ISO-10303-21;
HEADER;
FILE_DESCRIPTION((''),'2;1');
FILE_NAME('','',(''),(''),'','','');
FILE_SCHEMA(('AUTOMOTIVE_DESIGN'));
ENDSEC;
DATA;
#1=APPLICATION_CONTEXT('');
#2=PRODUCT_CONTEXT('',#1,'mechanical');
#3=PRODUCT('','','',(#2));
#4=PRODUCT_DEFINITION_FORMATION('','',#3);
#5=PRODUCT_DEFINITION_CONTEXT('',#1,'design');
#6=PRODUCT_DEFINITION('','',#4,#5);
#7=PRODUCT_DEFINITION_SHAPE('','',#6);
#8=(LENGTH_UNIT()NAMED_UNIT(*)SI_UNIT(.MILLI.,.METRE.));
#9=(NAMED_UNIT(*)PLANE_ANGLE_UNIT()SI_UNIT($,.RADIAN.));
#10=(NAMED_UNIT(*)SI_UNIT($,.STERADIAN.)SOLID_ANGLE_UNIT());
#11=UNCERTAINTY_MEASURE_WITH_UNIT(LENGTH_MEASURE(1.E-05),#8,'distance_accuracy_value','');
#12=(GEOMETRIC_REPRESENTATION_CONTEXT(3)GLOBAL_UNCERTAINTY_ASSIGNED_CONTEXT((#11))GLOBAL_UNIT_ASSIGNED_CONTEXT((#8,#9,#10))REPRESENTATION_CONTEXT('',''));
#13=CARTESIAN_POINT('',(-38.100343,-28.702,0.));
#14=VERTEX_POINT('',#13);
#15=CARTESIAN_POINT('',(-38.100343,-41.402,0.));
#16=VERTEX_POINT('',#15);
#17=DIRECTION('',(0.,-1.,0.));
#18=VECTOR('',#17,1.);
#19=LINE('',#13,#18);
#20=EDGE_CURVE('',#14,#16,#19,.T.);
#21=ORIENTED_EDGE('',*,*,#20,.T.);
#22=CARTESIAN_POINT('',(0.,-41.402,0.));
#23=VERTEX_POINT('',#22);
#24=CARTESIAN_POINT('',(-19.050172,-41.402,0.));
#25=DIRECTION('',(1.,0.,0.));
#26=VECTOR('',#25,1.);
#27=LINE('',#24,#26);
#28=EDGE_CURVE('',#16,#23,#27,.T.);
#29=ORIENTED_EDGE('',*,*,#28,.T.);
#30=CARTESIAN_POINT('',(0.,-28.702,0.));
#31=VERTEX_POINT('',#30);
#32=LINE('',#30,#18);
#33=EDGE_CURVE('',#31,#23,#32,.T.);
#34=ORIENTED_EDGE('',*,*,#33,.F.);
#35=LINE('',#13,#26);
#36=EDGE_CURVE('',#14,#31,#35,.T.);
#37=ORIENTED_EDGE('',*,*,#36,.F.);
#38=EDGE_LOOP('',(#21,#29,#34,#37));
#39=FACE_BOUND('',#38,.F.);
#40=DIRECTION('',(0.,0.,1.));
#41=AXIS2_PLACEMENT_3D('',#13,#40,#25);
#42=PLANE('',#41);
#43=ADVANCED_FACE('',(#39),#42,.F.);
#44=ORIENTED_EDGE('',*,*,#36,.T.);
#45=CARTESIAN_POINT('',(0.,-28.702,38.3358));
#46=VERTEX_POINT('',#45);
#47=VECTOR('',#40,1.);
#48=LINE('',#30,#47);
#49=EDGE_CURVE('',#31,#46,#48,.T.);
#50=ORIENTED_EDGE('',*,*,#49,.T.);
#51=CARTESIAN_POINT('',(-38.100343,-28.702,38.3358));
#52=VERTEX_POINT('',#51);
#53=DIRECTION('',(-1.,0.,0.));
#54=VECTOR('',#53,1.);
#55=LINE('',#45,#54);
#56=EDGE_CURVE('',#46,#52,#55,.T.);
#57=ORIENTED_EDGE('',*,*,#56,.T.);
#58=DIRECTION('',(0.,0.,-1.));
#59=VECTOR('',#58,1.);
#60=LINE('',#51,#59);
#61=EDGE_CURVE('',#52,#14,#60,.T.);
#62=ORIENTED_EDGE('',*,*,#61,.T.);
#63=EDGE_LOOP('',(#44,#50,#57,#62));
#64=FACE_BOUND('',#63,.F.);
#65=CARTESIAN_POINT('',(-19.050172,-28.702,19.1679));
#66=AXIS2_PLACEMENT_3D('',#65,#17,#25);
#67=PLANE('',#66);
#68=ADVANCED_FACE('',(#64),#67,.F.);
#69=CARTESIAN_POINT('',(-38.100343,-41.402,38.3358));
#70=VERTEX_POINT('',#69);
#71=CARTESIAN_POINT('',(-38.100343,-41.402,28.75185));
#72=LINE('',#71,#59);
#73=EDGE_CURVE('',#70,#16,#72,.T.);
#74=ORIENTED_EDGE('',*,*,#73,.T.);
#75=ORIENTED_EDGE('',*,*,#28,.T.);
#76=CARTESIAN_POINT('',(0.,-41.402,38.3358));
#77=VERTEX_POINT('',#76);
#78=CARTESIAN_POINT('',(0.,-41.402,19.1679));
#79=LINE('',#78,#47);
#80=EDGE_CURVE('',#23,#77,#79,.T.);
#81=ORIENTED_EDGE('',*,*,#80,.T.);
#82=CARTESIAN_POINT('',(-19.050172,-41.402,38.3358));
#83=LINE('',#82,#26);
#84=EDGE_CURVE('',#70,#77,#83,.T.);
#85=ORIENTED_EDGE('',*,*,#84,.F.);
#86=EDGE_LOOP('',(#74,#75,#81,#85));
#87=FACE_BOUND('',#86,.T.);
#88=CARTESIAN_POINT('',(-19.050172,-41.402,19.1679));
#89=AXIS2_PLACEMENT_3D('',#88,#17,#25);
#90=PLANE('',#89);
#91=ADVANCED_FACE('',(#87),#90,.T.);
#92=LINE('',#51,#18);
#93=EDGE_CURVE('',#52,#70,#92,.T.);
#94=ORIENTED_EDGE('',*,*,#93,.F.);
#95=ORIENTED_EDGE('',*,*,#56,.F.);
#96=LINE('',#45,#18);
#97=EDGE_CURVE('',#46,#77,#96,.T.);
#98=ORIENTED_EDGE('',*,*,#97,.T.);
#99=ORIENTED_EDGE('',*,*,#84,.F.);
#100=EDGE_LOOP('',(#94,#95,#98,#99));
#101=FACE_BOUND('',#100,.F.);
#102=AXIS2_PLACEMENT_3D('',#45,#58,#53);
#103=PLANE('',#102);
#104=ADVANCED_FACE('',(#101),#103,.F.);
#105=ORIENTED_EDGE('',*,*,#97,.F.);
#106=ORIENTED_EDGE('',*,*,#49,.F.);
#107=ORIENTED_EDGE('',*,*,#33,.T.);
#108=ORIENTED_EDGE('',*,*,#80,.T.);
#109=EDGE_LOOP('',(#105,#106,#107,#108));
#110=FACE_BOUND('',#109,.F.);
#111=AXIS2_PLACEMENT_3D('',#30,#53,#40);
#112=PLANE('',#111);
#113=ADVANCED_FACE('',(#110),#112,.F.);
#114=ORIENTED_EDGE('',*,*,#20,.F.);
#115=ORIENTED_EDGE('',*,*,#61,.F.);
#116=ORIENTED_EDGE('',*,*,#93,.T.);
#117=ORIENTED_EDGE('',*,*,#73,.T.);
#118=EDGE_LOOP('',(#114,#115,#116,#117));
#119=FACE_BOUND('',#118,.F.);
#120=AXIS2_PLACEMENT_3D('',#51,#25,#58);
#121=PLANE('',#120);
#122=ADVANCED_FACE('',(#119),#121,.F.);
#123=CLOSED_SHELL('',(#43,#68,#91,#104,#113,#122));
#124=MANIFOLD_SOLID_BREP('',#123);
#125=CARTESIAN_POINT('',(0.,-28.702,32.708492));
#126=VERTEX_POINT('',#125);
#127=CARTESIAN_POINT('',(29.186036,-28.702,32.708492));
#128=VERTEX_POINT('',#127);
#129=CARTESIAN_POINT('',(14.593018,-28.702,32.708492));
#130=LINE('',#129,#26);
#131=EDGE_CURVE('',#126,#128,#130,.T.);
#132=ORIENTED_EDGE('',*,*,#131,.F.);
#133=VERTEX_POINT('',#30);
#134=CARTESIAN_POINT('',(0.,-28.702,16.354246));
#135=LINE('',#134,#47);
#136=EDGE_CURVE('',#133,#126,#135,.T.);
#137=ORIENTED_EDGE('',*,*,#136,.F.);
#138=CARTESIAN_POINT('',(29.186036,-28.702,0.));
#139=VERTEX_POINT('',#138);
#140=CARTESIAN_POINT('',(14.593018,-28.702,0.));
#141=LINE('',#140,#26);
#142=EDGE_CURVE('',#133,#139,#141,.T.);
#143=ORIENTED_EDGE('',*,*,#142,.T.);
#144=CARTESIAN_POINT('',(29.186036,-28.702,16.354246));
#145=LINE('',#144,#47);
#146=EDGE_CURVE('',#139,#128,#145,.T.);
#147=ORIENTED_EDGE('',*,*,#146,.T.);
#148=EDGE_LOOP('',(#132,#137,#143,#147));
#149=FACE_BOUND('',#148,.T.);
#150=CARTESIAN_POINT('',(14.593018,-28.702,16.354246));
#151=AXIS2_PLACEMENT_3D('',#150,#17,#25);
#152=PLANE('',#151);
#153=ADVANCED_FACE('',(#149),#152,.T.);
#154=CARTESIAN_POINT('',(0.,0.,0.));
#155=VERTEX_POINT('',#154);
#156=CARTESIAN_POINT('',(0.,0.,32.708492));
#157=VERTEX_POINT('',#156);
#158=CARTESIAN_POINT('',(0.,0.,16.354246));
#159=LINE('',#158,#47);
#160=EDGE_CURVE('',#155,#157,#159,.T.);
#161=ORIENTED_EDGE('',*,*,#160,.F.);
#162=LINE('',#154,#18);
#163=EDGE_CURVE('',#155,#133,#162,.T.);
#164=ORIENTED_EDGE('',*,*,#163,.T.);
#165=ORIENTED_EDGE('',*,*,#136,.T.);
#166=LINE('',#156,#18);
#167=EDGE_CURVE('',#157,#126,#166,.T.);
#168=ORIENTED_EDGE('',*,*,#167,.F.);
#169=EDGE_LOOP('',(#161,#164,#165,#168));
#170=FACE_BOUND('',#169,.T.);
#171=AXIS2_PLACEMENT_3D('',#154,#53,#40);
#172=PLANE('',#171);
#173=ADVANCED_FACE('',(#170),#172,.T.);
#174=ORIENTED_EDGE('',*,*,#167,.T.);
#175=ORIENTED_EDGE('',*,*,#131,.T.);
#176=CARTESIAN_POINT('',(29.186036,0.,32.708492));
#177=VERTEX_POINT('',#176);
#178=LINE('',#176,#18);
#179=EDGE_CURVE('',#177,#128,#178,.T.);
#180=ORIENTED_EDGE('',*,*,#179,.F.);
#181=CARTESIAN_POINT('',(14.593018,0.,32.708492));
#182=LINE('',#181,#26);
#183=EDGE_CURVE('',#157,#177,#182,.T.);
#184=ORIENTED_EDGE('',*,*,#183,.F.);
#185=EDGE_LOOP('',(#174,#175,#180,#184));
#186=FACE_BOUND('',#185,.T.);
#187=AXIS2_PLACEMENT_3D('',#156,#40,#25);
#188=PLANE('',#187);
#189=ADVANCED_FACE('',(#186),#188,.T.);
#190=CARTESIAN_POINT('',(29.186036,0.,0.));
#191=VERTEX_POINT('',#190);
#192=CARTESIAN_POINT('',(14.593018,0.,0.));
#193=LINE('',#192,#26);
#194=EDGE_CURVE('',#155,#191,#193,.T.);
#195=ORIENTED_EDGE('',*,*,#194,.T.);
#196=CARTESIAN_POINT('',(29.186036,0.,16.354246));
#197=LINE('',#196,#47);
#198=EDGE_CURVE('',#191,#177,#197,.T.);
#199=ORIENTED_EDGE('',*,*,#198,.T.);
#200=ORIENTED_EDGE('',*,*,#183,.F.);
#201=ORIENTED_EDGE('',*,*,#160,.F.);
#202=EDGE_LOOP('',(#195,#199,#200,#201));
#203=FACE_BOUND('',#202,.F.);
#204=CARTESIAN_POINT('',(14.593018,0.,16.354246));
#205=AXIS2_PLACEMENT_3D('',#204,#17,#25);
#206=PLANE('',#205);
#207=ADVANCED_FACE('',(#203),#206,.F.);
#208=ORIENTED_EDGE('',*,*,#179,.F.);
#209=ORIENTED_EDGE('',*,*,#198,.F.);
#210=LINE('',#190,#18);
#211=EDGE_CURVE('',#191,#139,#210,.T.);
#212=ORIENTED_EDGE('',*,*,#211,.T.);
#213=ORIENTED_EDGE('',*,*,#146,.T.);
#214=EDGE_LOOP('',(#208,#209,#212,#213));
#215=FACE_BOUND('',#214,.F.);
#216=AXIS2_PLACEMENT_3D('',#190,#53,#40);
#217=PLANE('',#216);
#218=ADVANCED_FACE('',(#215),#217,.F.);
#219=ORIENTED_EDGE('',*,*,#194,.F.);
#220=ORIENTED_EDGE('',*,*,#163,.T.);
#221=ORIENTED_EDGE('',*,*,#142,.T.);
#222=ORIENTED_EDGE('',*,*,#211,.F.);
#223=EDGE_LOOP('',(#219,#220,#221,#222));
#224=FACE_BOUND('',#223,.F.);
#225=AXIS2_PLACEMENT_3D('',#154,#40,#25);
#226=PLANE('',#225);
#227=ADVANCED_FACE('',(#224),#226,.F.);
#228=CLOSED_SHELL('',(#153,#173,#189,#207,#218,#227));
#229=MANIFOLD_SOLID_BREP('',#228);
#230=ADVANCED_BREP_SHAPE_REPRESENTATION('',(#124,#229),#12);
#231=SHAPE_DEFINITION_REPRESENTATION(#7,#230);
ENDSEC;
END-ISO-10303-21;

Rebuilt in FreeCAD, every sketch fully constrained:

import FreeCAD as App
import Part
import Sketcher

V = App.Vector
Q = App.Units.Quantity

doc = App.newDocument("Part")
params = doc.addObject("Spreadsheet::Sheet", "Params")
for row, (alias, value) in enumerate([
    ("pad1_length", "1.13 in"),
    ("pad2_length", "1 in"),
    ("pocket1_length", "0.5 in"),
], start=1):
    params.set(f"A{row}", alias)
    params.set(f"B{row}", "=" + value)
    params.setAlias(f"B{row}", alias)

body = doc.addObject("PartDesign::Body", "Body")

# Sketch on XZ plane
sketch1 = body.newObject("Sketcher::SketchObject", "Sketch")
sketch1.AttachmentSupport = (doc.getObject("XZ_Plane"), [""])
sketch1.MapMode = "FlatFace"
sketch1.addGeometry([
    Part.LineSegment(V(0, 33, 0), V(0, 0, 0)),
    Part.LineSegment(V(0, 0, 0), V(29, 0, 0)),
    Part.LineSegment(V(29, 0, 0), V(29, 33, 0)),
    Part.LineSegment(V(29, 33, 0), V(0, 33, 0)),
], False)
sketch1.addConstraint([
    Sketcher.Constraint("Coincident", 0, 2, 1, 1),
    Sketcher.Constraint("Coincident", 1, 2, 2, 1),
    Sketcher.Constraint("Coincident", 2, 2, 3, 1),
    Sketcher.Constraint("Coincident", 3, 2, 0, 1),
    Sketcher.Constraint("Vertical", 0),
    Sketcher.Constraint("Horizontal", 1),
    Sketcher.Constraint("Vertical", 2),
    Sketcher.Constraint("Horizontal", 3),
    Sketcher.Constraint("Coincident", 0, 2, -1, 1),
    Sketcher.Constraint("DistanceX", 1, 1, 1, 2, Q("29.186036 mm")),
    Sketcher.Constraint("DistanceY", 0, 2, 0, 1, Q("32.708492 mm")),
])
pad1 = body.newObject("PartDesign::Pad", "Pad")
pad1.Profile = sketch1
pad1.setExpression("Length", "Params.pad1_length")
body2 = doc.addObject("PartDesign::Body", "Body001")

# Sketch on XZ plane
sketch2 = body2.newObject("Sketcher::SketchObject", "Sketch001")
sketch2.AttachmentSupport = (doc.getObject("XZ_Plane001"), [""])
sketch2.MapMode = "FlatFace"
sketch2.AttachmentOffset = App.Placement(V(0, 0, 1.13 * 25.4), App.Rotation())
sketch2.addGeometry([
    Part.LineSegment(V(-38, 0, 0), V(0, 0, 0)),
    Part.LineSegment(V(0, 0, 0), V(0, 38, 0)),
    Part.LineSegment(V(0, 38, 0), V(-38, 38, 0)),
    Part.LineSegment(V(-38, 38, 0), V(-38, 0, 0)),
], False)
sketch2.addConstraint([
    Sketcher.Constraint("Coincident", 0, 2, 1, 1),
    Sketcher.Constraint("Coincident", 1, 2, 2, 1),
    Sketcher.Constraint("Coincident", 2, 2, 3, 1),
    Sketcher.Constraint("Coincident", 3, 2, 0, 1),
    Sketcher.Constraint("Horizontal", 0),
    Sketcher.Constraint("Vertical", 1),
    Sketcher.Constraint("Horizontal", 2),
    Sketcher.Constraint("Vertical", 3),
    Sketcher.Constraint("Coincident", 0, 2, -1, 1),
    Sketcher.Constraint("DistanceY", 1, 1, 1, 2, Q("38.3358 mm")),
    Sketcher.Constraint("DistanceX", 0, 1, 0, 2, Q("38.100343 mm")),
])
pad2 = body2.newObject("PartDesign::Pad", "Pad001")
pad2.Profile = sketch2
pad2.setExpression("Length", "Params.pad2_length")

# Sketch on XZ plane
sketch3 = body2.newObject("Sketcher::SketchObject", "Sketch002")
sketch3.AttachmentSupport = (doc.getObject("XZ_Plane001"), [""])
sketch3.MapMode = "FlatFace"
sketch3.AttachmentOffset = App.Placement(V(0, 0, 2.13 * 25.4), App.Rotation())
sketch3.addGeometry([
    Part.LineSegment(V(-38, 38, 0), V(-38, 0, 0)),
    Part.LineSegment(V(-38, 0, 0), V(0, 0, 0)),
    Part.LineSegment(V(0, 0, 0), V(0, 38, 0)),
    Part.LineSegment(V(0, 38, 0), V(-38, 38, 0)),
], False)
sketch3.addConstraint([
    Sketcher.Constraint("Coincident", 0, 2, 1, 1),
    Sketcher.Constraint("Coincident", 1, 2, 2, 1),
    Sketcher.Constraint("Coincident", 2, 2, 3, 1),
    Sketcher.Constraint("Coincident", 3, 2, 0, 1),
    Sketcher.Constraint("Vertical", 0),
    Sketcher.Constraint("Horizontal", 1),
    Sketcher.Constraint("Vertical", 2),
    Sketcher.Constraint("Horizontal", 3),
    Sketcher.Constraint("Coincident", 1, 2, -1, 1),
    Sketcher.Constraint("DistanceY", 0, 2, 0, 1, Q("38.3358 mm")),
    Sketcher.Constraint("DistanceX", 1, 1, 1, 2, Q("38.100344 mm")),
])
pocket1 = body2.newObject("PartDesign::Pocket", "Pocket")
pocket1.Profile = sketch3
pocket1.setExpression("Length", "Params.pocket1_length")

doc.recompute()
